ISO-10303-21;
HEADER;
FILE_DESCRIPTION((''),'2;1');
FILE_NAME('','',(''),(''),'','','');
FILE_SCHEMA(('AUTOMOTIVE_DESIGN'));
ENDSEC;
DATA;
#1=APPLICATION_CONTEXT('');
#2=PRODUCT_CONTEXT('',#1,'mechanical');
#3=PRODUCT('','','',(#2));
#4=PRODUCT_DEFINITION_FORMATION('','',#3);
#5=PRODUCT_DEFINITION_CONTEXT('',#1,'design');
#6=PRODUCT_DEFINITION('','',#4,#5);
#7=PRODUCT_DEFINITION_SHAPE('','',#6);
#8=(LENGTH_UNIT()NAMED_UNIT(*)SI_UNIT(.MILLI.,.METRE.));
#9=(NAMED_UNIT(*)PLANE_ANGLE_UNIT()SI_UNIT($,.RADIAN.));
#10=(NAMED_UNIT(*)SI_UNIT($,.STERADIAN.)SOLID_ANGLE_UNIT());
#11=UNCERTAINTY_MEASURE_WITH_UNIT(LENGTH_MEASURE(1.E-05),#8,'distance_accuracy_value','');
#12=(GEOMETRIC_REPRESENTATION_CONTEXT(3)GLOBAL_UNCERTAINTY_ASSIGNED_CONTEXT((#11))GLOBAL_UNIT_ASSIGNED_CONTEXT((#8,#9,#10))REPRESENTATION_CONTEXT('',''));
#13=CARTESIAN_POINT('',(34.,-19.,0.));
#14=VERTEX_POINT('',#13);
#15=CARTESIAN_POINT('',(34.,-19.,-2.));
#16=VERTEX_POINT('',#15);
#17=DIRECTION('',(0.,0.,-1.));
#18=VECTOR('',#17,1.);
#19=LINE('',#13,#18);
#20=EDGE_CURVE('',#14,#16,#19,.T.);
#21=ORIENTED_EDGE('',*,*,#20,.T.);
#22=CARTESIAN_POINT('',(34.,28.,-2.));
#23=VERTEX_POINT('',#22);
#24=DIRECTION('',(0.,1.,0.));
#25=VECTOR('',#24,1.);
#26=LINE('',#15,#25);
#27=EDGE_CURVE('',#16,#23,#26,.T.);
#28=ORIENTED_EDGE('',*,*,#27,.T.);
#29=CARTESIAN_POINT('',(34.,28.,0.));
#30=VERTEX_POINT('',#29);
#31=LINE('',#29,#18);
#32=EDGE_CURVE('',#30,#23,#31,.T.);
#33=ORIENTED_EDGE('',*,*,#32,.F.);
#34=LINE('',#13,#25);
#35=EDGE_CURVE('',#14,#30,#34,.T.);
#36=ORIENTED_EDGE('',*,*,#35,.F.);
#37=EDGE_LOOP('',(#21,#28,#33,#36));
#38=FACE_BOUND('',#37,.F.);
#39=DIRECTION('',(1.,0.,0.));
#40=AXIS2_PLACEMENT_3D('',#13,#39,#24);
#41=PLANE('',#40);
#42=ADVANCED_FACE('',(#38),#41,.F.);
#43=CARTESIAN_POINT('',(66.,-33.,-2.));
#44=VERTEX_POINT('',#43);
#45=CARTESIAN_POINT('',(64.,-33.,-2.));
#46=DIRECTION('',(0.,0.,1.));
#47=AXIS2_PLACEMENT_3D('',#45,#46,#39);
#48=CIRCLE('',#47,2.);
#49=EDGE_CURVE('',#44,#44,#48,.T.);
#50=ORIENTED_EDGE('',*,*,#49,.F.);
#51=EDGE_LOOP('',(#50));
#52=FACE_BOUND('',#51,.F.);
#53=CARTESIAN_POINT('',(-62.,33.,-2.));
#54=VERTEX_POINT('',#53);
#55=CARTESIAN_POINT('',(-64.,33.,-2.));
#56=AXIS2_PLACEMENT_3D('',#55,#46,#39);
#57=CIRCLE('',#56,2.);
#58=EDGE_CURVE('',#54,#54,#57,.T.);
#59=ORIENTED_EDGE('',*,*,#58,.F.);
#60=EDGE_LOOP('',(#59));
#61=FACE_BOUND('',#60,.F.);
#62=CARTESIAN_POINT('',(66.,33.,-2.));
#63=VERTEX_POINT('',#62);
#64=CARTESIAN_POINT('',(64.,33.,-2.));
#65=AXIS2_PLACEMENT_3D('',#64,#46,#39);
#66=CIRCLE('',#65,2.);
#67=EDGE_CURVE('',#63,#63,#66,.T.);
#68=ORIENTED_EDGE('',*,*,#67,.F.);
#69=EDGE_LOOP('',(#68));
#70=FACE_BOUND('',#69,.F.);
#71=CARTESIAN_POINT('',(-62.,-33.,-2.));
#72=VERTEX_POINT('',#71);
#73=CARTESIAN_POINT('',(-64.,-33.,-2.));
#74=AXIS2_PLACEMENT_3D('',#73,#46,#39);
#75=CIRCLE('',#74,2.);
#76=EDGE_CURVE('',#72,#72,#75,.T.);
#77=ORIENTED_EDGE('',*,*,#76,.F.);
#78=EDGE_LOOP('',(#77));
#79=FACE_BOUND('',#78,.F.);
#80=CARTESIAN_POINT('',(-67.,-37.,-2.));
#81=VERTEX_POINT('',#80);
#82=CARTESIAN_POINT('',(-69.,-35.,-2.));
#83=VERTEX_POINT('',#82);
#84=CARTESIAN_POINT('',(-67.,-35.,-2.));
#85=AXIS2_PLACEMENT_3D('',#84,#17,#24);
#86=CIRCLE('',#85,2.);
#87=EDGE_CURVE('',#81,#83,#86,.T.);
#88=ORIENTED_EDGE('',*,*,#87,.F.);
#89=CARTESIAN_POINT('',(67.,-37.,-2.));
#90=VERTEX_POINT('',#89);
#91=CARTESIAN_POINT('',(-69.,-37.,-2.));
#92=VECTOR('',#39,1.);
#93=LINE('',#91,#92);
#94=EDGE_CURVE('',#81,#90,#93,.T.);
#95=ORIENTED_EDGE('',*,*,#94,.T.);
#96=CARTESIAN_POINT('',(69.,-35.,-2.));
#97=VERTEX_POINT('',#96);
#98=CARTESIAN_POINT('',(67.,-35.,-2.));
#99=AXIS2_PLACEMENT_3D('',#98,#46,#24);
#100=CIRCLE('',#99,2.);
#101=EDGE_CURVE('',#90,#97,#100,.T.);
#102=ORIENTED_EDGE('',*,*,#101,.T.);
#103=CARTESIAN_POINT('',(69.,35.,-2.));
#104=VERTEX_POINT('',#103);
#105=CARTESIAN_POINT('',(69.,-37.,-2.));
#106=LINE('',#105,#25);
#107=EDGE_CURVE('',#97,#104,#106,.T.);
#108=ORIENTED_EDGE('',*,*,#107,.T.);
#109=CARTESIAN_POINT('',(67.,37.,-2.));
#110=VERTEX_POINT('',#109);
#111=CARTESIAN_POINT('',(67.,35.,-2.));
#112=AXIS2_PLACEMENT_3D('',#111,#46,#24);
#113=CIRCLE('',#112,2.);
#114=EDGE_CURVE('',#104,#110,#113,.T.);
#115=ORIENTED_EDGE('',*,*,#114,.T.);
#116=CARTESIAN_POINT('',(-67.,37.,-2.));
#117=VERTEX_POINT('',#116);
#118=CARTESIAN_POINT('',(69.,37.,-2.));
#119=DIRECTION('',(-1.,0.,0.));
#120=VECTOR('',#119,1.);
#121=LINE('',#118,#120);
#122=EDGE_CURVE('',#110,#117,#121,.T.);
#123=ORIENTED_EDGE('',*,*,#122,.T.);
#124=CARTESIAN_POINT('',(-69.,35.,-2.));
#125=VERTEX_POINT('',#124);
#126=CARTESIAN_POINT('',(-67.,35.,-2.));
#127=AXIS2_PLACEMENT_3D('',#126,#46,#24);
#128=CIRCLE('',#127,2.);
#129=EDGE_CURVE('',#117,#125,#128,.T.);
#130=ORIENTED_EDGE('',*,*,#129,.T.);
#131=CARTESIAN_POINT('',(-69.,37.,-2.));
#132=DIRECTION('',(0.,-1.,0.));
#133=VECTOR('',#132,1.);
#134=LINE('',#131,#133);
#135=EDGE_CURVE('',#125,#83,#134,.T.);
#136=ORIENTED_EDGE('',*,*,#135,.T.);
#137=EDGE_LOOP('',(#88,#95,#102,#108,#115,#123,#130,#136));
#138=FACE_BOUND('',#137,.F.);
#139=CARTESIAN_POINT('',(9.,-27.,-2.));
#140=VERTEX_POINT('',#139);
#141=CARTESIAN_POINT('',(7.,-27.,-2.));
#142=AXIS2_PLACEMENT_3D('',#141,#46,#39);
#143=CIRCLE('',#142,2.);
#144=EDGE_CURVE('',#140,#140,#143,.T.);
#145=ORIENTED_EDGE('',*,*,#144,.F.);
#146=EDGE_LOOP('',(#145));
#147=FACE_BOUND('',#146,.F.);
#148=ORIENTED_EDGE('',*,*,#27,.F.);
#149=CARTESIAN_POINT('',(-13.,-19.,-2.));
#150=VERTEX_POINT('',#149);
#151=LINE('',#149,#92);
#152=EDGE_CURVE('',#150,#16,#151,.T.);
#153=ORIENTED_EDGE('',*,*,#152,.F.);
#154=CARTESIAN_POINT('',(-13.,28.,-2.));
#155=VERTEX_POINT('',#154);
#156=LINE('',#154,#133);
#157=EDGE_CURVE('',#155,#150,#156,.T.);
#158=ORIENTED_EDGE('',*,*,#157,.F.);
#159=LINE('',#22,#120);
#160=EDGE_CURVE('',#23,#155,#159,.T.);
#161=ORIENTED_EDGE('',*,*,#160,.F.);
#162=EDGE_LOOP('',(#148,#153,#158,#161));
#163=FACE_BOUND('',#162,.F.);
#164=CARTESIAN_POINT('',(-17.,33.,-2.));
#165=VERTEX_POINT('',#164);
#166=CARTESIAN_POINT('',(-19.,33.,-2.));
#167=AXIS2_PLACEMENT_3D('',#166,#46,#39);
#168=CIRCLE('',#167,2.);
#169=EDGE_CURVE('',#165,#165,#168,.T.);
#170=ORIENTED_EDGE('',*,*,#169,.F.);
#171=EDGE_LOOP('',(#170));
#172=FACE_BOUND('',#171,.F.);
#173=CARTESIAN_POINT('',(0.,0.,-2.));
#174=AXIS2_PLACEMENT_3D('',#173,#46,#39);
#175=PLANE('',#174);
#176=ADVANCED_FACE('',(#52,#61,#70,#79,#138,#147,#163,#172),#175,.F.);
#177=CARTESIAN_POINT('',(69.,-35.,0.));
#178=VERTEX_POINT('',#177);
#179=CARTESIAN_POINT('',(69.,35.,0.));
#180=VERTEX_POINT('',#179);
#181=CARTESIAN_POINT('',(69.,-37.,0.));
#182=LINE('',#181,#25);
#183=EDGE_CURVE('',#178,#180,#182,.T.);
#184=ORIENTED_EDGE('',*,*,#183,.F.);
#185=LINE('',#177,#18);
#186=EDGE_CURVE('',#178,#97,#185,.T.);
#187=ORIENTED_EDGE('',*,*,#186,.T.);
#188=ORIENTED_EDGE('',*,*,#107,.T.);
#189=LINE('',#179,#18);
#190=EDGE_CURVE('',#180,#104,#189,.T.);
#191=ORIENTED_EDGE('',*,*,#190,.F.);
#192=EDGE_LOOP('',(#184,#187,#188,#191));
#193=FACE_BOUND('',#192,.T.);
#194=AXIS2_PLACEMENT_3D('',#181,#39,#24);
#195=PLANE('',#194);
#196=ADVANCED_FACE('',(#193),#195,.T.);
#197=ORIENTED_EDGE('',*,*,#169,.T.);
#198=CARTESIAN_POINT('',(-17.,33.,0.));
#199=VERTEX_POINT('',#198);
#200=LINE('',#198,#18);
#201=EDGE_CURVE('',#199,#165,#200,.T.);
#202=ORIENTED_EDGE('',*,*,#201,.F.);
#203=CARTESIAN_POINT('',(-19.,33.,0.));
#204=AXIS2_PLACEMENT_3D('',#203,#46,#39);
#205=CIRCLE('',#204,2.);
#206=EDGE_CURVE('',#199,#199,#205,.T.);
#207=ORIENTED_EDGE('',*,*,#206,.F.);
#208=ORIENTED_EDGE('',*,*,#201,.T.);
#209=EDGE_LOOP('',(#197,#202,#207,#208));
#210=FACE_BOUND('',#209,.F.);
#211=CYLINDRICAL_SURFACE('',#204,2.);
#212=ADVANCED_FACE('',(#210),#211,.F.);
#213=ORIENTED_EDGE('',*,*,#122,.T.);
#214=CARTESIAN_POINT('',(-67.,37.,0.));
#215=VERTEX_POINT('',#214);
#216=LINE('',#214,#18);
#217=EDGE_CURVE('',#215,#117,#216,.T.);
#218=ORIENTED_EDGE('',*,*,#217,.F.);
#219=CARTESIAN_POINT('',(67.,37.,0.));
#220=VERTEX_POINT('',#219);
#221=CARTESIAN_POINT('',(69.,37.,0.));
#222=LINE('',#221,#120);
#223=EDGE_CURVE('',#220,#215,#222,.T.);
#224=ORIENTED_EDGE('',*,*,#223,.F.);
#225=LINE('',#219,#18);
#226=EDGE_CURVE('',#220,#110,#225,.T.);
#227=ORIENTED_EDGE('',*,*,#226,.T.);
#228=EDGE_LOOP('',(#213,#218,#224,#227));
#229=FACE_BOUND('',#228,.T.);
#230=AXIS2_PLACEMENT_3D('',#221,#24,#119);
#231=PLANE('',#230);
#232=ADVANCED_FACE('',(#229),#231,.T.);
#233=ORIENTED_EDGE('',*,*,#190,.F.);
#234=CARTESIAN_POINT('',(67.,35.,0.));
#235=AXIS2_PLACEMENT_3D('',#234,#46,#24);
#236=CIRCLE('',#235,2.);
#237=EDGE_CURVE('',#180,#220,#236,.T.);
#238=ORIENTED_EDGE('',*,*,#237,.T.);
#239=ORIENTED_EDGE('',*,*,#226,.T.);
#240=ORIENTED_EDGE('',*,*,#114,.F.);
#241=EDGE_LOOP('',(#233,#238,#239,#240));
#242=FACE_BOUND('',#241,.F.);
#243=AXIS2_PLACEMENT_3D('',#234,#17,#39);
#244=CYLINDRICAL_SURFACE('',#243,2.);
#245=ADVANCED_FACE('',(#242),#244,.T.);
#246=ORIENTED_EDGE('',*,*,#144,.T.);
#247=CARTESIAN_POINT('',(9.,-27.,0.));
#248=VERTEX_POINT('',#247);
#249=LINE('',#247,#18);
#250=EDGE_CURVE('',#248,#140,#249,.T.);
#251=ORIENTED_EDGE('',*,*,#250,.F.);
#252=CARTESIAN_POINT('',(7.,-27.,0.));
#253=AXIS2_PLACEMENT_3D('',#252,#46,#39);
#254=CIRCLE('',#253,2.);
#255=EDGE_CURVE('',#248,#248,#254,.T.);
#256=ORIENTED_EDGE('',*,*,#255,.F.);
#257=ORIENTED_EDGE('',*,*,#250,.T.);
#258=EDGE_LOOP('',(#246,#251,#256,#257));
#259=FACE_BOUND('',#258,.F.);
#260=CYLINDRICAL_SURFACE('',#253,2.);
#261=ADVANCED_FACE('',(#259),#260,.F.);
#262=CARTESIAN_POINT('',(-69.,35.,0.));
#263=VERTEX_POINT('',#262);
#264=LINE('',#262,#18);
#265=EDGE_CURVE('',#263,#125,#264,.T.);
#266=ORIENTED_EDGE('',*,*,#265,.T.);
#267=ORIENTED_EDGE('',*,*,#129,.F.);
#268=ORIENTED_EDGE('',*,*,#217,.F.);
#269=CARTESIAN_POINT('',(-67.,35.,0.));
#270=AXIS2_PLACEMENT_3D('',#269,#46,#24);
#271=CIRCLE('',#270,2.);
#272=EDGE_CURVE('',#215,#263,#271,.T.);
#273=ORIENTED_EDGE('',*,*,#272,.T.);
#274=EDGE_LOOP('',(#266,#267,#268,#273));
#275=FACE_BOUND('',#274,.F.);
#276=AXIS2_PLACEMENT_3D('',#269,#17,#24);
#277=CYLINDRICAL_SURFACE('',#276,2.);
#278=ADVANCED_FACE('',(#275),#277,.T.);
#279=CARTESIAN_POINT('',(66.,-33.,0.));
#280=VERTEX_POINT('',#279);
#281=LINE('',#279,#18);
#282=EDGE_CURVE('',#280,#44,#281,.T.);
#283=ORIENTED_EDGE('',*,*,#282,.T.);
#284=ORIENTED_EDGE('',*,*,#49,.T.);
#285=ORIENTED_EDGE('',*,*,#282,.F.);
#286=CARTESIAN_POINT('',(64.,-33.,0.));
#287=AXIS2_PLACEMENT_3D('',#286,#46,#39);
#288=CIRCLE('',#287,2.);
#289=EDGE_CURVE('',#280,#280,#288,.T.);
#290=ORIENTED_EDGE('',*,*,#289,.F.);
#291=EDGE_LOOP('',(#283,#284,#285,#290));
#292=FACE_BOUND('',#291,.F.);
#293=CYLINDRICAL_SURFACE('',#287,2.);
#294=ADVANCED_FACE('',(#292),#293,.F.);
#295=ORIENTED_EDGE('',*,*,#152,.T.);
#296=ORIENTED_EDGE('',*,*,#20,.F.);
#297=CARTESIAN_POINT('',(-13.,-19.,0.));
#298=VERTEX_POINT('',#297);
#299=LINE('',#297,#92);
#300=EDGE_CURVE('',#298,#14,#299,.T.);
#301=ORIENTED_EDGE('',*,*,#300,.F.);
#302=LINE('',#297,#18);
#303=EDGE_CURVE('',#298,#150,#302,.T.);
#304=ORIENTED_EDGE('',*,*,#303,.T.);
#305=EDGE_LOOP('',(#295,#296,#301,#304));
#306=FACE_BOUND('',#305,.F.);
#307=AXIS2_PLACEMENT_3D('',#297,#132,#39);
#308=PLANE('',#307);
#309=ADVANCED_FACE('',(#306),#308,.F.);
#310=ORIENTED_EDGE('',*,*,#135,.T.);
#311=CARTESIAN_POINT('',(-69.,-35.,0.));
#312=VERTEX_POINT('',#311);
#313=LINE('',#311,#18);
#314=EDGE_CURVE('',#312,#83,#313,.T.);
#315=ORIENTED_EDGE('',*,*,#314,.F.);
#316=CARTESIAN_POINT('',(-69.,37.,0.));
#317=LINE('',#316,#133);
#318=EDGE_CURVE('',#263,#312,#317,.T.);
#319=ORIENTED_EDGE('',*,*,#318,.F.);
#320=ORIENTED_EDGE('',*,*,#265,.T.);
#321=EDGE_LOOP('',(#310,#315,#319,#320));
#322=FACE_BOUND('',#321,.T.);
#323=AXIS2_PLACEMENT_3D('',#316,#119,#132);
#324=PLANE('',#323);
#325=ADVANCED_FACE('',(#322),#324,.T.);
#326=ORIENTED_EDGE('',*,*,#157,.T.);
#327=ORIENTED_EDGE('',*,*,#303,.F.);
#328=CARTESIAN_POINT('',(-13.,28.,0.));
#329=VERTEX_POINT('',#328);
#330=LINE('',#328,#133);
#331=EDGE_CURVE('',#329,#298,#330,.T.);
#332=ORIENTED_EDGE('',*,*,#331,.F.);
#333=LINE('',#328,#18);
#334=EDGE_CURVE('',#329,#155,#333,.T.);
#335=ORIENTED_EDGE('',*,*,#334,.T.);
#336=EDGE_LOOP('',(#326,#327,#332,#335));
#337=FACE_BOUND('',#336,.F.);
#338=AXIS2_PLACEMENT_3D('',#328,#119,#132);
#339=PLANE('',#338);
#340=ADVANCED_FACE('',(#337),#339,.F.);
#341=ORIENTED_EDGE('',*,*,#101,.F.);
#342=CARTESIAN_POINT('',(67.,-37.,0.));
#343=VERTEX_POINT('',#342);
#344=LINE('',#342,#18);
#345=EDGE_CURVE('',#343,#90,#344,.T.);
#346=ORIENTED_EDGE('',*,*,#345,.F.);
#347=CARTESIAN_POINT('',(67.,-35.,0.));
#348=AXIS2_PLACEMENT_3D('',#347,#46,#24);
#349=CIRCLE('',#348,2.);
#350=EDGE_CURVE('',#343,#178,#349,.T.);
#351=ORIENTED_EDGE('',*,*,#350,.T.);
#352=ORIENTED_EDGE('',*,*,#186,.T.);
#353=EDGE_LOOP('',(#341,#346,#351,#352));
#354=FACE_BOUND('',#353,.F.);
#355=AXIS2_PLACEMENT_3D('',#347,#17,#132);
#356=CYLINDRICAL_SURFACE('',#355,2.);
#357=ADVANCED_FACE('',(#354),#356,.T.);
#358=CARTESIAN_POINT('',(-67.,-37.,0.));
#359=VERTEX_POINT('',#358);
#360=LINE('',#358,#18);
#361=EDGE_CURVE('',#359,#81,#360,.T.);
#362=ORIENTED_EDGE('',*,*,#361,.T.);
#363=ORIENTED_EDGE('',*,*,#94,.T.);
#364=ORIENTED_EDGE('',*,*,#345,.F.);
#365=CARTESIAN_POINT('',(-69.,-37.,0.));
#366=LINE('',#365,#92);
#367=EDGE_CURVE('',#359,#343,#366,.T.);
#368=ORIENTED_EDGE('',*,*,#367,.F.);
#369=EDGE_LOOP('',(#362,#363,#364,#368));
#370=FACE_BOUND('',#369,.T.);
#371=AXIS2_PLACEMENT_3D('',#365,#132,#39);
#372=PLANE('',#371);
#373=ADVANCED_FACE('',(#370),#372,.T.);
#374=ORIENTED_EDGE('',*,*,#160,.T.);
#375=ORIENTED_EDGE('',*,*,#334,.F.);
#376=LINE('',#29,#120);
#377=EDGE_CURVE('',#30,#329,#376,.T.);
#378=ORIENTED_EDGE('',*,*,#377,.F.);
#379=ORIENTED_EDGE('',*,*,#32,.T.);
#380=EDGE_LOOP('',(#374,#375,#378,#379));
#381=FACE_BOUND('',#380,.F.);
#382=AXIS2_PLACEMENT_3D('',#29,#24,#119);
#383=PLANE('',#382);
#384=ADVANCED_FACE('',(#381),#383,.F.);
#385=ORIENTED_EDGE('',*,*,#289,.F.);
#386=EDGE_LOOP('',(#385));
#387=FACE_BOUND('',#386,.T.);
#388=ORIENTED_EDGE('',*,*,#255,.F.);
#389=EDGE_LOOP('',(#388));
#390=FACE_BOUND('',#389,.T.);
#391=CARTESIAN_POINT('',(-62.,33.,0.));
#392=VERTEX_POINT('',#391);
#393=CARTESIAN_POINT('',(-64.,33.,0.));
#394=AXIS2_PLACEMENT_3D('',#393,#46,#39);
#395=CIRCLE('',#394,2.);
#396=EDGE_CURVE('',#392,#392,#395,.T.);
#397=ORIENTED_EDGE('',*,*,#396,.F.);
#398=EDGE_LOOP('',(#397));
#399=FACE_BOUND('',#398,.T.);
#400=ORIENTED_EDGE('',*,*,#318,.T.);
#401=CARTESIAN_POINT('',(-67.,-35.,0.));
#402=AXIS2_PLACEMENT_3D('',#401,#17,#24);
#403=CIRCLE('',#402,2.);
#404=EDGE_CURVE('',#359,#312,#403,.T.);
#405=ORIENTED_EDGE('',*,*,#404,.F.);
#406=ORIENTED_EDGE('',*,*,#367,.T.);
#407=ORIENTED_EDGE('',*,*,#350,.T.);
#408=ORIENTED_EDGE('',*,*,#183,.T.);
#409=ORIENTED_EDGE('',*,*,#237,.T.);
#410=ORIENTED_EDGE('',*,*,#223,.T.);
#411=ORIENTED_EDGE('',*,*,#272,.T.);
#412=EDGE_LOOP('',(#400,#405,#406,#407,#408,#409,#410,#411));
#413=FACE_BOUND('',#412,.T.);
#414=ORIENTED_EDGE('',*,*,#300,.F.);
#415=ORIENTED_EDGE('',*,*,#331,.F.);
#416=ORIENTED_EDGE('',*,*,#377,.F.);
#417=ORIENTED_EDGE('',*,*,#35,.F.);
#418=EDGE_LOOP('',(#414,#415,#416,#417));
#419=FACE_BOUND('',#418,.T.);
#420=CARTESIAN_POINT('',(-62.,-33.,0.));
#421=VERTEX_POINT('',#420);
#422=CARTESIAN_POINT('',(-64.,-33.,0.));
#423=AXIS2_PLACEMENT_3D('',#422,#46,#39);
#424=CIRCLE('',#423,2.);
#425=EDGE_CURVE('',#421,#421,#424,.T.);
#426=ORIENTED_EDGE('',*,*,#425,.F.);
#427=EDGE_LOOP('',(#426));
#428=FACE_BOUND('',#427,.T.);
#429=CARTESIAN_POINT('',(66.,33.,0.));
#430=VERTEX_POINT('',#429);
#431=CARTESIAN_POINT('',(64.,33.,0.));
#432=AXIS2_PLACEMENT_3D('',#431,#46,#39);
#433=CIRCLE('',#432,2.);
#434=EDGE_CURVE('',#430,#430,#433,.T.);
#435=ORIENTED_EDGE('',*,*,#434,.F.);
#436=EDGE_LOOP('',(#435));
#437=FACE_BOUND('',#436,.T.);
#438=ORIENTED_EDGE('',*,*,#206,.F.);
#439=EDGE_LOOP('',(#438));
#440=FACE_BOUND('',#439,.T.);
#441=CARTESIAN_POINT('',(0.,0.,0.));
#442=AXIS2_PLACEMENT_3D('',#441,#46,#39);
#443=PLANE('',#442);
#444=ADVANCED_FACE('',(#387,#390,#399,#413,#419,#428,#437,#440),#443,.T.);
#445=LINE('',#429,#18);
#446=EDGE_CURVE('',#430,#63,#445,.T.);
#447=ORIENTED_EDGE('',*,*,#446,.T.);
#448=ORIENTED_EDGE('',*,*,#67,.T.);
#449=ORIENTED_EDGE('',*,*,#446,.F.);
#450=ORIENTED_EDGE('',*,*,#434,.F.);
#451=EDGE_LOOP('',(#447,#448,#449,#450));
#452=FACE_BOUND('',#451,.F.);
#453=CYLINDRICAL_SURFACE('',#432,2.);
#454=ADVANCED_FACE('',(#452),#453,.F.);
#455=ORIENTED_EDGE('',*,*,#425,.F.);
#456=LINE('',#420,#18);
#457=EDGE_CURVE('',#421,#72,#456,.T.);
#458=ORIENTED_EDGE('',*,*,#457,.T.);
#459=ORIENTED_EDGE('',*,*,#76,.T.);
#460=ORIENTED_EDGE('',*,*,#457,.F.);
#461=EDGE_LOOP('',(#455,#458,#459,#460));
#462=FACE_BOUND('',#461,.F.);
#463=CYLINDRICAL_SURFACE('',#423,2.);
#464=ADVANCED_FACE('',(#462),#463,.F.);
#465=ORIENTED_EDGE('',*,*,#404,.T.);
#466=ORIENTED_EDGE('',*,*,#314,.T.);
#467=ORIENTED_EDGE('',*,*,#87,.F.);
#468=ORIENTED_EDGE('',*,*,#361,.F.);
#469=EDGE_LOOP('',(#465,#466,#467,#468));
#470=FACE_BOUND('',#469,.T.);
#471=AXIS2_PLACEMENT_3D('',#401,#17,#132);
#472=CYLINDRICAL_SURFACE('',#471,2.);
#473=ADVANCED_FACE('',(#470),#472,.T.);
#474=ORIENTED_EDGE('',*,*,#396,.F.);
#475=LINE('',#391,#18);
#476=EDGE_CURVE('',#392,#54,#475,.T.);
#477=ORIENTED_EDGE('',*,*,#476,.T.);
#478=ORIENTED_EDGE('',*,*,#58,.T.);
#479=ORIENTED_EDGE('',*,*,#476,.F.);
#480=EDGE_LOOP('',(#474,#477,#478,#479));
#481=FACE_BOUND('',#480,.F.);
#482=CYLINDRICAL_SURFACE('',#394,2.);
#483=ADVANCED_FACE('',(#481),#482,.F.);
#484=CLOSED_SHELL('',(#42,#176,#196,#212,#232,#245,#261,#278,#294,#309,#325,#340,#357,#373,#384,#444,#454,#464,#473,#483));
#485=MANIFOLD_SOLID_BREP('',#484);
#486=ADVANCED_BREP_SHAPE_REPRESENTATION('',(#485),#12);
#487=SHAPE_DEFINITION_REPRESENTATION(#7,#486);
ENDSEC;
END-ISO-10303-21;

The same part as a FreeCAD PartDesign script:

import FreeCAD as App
import Part
import Sketcher
Q = App.Units.Quantity


def edges_at(feature, points):
    """Names of the edges that pass closest to the given points."""
    edges = feature.Shape.Edges
    near = lambda p: min(range(len(edges)), key=lambda i: edges[i].distToShape(Part.Vertex(*p))[0])
    return sorted({f"Edge{near(p) + 1}" for p in points})


def add_polygon(sketch, points):
    """Adds a closed chain of lines whose ends are joined by coincident constraints."""
    first, n = sketch.GeometryCount, len(points)
    for a, b in zip(points, points[1:] + points[:1]):
        sketch.addGeometry(Part.LineSegment(App.Vector(*a, 0), App.Vector(*b, 0)), False)
    for i in range(n):
        sketch.addConstraint(Sketcher.Constraint("Coincident", first + i, 2, first + (i + 1) % n, 1))

doc = App.newDocument("Part")
body = doc.addObject("PartDesign::Body", "Body")

sketch1 = body.newObject("Sketcher::SketchObject", "Sketch")
sketch1.AttachmentSupport = (doc.getObject("XY_Plane"), [""])
sketch1.MapMode = "FlatFace"
add_polygon(sketch1, [(-69, 37), (-69, -37), (69, -37), (69, 37)])
sketch1.addGeometry(Part.Circle(App.Vector(-64, -33, 0), App.Vector(0, 0, 1), 2), False)
sketch1.addGeometry(Part.Circle(App.Vector(7, -27, 0), App.Vector(0, 0, 1), 2), False)
sketch1.addGeometry(Part.Circle(App.Vector(64, -33, 0), App.Vector(0, 0, 1), 2), False)
sketch1.addGeometry(Part.Circle(App.Vector(-64, 33, 0), App.Vector(0, 0, 1), 2), False)
sketch1.addGeometry(Part.Circle(App.Vector(-19, 33, 0), App.Vector(0, 0, 1), 2), False)
add_polygon(sketch1, [(34, -19), (-13, -19), (-13, 28), (34, 28)])
sketch1.addGeometry(Part.Circle(App.Vector(64, 33, 0), App.Vector(0, 0, 1), 2), False)
sketch1.addConstraint([
    Sketcher.Constraint("Vertical", 0),
    Sketcher.Constraint("Horizontal", 1),
    Sketcher.Constraint("Vertical", 2),
    Sketcher.Constraint("Horizontal", 3),
    Sketcher.Constraint("Horizontal", 9),
    Sketcher.Constraint("Vertical", 10),
    Sketcher.Constraint("Horizontal", 11),
    Sketcher.Constraint("Vertical", 12),
    Sketcher.Constraint("Equal", 4, 5),
    Sketcher.Constraint("Equal", 5, 6),
    Sketcher.Constraint("Equal", 6, 7),
    Sketcher.Constraint("Equal", 7, 8),
    Sketcher.Constraint("Equal", 8, 13),
    Sketcher.Constraint("Symmetric", 6, 3, 7, 3, -1, 1),
    Sketcher.Constraint("Symmetric", 4, 3, 13, 3, -1, 1),
    Sketcher.Constraint("Symmetric", 0, 2, 2, 2, -1, 1),
    Sketcher.Constraint("Symmetric", 4, 3, 6, 3, -2),
    Sketcher.Constraint("Horizontal", 7, 3, 8, 3),
    Sketcher.Constraint("Equal", 11, 10),
    Sketcher.Constraint("Diameter", 4, Q("4 mm")),
    Sketcher.Constraint("DistanceX", 0, 2, -1, 1, Q("69 mm")),
    Sketcher.Constraint("DistanceX", 9, 2, 9, 1, Q("47 mm")),
    Sketcher.Constraint("DistanceY", 0, 2, 0, 1, Q("74 mm")),
    Sketcher.Constraint("DistanceX", 4, 3, -1, 1, Q("64 mm")),
    Sketcher.Constraint("DistanceY", 4, 3, -1, 1, Q("33 mm")),
    Sketcher.Constraint("DistanceX", -1, 1, 5, 3, Q("7 mm")),
    Sketcher.Constraint("DistanceY", 5, 3, -1, 1, Q("27 mm")),
    Sketcher.Constraint("DistanceX", 8, 3, -1, 1, Q("19 mm")),
    Sketcher.Constraint("DistanceX", 9, 2, -1, 1, Q("13 mm")),
    Sketcher.Constraint("DistanceY", 9, 2, -1, 1, Q("19 mm")),
])
pad1 = body.newObject("PartDesign::Pad", "Pad")
pad1.Profile = sketch1
pad1.Length = 2
pad1.Reversed = True
doc.recompute()

fillet = body.newObject("PartDesign::Fillet", "Fillet")
fillet.Base = (pad1, edges_at(pad1, [
    (-69, -37, -1),
    (-69, 37, -1),
    (69, 37, -1),
    (69, -37, -1),
]))
fillet.Radius = 2

doc.recompute()
